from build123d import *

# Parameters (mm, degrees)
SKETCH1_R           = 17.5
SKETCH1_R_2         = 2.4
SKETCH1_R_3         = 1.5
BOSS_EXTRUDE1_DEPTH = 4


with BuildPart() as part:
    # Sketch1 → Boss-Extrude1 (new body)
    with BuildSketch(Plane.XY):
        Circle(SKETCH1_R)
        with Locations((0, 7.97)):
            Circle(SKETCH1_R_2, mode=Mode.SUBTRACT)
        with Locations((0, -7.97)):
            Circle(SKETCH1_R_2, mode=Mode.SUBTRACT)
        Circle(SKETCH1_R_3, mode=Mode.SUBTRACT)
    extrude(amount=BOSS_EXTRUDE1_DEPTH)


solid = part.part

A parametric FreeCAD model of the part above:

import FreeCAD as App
import Part
import Sketcher
from FreeCAD import Vector

doc = App.newDocument("Part")
body = doc.addObject("PartDesign::Body", "Body")

sketch1 = doc.addObject("Sketcher::SketchObject", "Sketch")
body.addObject(sketch1)
sketch1.AttachmentSupport = (doc.XY_Plane, [""])
sketch1.MapMode = "FlatFace"
sketch1.addGeometry([
    Part.Circle(Vector(0, 0, 0), Vector(0, 0, 1), 17.5),
    Part.Circle(Vector(0, -8, 0), Vector(0, 0, 1), 2.4),
    Part.Circle(Vector(0, 0, 0), Vector(0, 0, 1), 1.5),
    Part.Circle(Vector(0, 8, 0), Vector(0, 0, 1), 2.4),
], False)
sketch1.addConstraint([
    Sketcher.Constraint("Coincident", 0, 3, -1, 1),
    Sketcher.Constraint("Coincident", 2, 3, -1, 1),
    Sketcher.Constraint("Equal", 1, 3),
    Sketcher.Constraint("Symmetric", 1, 3, 3, 3, -1, 1),
    Sketcher.Constraint("PointOnObject", 1, 3, -2),
    Sketcher.Constraint("Diameter", 0, 35.0),
    Sketcher.Constraint("Diameter", 2, 3.0),
    Sketcher.Constraint("Diameter", 1, 4.8),
    Sketcher.Constraint("DistanceY", 1, 3, -1, 1, 7.97),
])
pad1 = doc.addObject("PartDesign::Pad", "Pad")
body.addObject(pad1)
pad1.Profile = sketch1
pad1.Length = 4

doc.recompute()
